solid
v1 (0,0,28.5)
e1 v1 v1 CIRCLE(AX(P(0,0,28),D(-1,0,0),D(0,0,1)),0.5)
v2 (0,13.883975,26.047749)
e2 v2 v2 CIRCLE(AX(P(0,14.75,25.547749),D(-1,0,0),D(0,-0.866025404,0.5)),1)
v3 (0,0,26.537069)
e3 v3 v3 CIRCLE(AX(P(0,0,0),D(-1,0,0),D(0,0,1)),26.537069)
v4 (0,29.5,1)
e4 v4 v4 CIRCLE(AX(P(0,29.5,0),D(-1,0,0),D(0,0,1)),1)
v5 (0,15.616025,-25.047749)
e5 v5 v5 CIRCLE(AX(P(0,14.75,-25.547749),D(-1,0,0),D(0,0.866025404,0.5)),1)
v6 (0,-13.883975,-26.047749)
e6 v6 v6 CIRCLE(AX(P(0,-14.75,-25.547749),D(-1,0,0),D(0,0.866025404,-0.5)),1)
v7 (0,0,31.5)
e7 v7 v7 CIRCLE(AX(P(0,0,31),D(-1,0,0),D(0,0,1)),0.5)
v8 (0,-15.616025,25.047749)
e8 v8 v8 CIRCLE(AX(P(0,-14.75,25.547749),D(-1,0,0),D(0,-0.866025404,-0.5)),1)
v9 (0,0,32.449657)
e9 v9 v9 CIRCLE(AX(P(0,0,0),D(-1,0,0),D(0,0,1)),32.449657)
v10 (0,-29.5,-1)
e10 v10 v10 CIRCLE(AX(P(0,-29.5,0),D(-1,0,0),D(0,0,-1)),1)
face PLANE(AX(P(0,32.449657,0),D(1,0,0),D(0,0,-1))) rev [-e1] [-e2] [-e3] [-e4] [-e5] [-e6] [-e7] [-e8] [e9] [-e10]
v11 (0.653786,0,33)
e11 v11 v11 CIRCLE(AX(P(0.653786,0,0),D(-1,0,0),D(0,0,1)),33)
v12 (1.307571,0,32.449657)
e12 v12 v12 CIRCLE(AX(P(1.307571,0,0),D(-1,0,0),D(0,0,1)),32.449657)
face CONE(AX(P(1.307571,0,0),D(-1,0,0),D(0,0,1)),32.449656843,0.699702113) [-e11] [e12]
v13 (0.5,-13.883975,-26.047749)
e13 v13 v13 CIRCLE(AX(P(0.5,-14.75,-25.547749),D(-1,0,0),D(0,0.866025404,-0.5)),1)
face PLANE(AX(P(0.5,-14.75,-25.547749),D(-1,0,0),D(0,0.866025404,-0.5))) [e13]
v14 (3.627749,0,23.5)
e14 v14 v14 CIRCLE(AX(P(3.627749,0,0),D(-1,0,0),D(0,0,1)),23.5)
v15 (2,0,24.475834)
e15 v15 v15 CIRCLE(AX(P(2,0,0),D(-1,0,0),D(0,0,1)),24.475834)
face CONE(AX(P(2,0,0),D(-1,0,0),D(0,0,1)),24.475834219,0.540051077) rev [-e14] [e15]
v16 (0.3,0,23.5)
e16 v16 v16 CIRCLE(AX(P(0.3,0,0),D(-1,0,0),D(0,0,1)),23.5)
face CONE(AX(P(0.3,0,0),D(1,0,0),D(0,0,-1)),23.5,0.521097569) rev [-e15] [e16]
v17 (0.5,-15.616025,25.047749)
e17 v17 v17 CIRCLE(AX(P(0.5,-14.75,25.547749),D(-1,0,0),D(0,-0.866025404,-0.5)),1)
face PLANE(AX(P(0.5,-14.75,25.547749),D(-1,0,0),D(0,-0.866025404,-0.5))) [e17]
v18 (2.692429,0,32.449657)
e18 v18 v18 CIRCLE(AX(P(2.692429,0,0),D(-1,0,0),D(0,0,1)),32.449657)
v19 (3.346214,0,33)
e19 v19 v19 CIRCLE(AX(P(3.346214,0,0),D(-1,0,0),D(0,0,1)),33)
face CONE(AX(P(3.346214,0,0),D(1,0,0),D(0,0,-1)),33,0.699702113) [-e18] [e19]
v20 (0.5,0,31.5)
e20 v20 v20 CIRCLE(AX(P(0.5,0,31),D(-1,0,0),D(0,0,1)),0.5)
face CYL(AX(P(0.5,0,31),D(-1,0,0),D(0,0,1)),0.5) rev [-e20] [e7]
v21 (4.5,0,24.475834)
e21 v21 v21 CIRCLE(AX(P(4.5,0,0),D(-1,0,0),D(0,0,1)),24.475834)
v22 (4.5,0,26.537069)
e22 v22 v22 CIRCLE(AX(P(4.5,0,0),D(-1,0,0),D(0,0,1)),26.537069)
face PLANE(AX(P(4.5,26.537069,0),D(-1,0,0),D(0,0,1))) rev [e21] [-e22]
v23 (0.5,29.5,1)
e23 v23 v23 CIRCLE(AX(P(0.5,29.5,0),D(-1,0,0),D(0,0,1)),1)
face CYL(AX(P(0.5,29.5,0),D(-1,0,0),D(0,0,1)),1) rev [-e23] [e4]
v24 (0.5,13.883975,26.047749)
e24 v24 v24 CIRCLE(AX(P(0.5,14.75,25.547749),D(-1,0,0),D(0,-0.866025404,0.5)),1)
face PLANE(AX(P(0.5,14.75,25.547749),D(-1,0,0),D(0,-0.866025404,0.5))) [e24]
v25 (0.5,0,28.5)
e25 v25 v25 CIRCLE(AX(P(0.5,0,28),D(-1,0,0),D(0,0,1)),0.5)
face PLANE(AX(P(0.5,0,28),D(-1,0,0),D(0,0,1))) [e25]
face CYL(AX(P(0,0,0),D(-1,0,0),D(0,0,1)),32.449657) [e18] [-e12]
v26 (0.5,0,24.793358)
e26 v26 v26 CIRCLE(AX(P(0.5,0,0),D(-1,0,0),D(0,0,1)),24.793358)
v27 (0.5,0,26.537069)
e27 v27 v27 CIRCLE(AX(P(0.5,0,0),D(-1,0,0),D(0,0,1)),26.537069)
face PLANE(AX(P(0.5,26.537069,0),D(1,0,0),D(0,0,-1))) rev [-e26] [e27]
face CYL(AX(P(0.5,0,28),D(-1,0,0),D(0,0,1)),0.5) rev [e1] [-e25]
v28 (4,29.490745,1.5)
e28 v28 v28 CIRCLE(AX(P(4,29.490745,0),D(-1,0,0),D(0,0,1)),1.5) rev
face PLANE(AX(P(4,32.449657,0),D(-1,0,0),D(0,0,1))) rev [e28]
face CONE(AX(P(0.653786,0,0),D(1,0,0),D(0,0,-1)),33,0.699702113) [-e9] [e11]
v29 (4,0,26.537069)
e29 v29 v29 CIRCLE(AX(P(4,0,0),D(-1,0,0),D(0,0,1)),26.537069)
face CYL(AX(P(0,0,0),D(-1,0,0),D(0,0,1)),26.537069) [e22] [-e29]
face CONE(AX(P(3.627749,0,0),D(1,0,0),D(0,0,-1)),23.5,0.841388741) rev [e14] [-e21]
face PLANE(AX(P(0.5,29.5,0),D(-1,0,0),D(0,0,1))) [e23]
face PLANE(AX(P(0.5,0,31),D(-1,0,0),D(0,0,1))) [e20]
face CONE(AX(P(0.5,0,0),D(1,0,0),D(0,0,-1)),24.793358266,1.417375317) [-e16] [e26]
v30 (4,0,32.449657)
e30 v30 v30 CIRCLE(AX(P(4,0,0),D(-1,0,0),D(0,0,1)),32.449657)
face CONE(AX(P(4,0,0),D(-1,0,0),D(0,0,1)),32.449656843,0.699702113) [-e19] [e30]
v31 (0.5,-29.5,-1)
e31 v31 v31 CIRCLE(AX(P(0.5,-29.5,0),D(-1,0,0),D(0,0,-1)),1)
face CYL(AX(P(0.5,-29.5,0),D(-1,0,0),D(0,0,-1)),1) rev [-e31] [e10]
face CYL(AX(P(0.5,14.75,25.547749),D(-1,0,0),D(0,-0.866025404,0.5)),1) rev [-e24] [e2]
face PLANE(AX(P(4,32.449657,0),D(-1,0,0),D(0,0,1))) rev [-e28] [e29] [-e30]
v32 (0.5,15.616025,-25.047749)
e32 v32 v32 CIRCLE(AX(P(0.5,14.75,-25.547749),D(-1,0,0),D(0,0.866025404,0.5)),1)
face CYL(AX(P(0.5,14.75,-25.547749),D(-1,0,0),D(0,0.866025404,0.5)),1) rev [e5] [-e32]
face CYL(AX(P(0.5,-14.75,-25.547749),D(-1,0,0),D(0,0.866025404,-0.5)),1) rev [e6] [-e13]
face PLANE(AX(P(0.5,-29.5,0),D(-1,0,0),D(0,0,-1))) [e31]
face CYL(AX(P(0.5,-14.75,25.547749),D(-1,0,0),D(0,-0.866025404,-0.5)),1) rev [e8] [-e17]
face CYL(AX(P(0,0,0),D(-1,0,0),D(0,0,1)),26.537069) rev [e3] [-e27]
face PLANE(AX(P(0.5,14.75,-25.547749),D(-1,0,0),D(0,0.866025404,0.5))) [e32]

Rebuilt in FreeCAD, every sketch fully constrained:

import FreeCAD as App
import Part
import Sketcher


def add_polygon(sketch, points):
    """Adds a closed chain of lines whose ends are joined by coincident constraints."""
    first, n = sketch.GeometryCount, len(points)
    for a, b in zip(points, points[1:] + points[:1]):
        sketch.addGeometry(Part.LineSegment(App.Vector(*a, 0), App.Vector(*b, 0)), False)
    for i in range(n):
        sketch.addConstraint(Sketcher.Constraint("Coincident", first + i, 2, first + (i + 1) % n, 1))

doc = App.newDocument("Part")
body = doc.addObject("PartDesign::Body", "Body")

sketch1 = body.newObject("Sketcher::SketchObject", "Sketch")
sketch1.AttachmentSupport = (doc.getObject("XY_Plane"), [""])
sketch1.MapMode = "FlatFace"
add_polygon(sketch1, [(0.653786, 33), (0, 32.449657), (0, 26.537069), (0.5, 26.537069), (0.5, 24.793358), (0.3, 23.5), (2, 24.475834), (3.627749, 23.5), (4.5, 24.475834), (4.5, 26.537069), (4, 26.537069), (4, 32.449657), (3.346214, 33), (2.692429, 32.449657), (1.307571, 32.449657)])
sketch1.addConstraint([
    Sketcher.Constraint("Vertical", 1),
    Sketcher.Constraint("Horizontal", 2),
    Sketcher.Constraint("Vertical", 3),
    Sketcher.Constraint("Vertical", 8),
    Sketcher.Constraint("Horizontal", 9),
    Sketcher.Constraint("Vertical", 10),
    Sketcher.Constraint("Horizontal", 13),
    Sketcher.Constraint("PointOnObject", 0, 2, -2),
    Sketcher.Constraint("Parallel", 0, 12),
    Sketcher.Constraint("Parallel", 11, 14),
    Sketcher.Constraint("Horizontal", 4, 2, 6, 2),
    Sketcher.Constraint("Horizontal", 5, 2, 7, 2),
    Sketcher.Constraint("Horizontal", 2, 2, 8, 2),
    Sketcher.Constraint("Horizontal", 0, 2, 10, 2),
    Sketcher.Constraint("Horizontal", 10, 2, 12, 2),
    Sketcher.Constraint("Horizontal", 11, 2, 14, 2),
    Sketcher.Constraint("Equal", 2, 9),
    Sketcher.Constraint("Equal", 0, 11),
    Sketcher.Constraint("DistanceX", 2, 1, 2, 2, 0.5),
    Sketcher.Constraint("DistanceX", -1, 1, 5, 2, 2.0),
    Sketcher.Constraint("DistanceX", -1, 1, 9, 2, 4.0),
    Sketcher.Constraint("DistanceY", -1, 1, 11, 2, 33.0),
    Sketcher.Constraint("DistanceX", -1, 1, 4, 2, 0.3),
    Sketcher.Constraint("DistanceY", -1, 1, 4, 2, 23.5),
    Sketcher.Constraint("DistanceY", 3, 2, 3, 1, 1.743711),
    Sketcher.Constraint("DistanceY", 3, 2, 0, 2, 7.656299),
    Sketcher.Constraint("Distance", 4, 1.308731),
    Sketcher.Constraint("DistanceX", 13, 2, 13, 1, 1.384858),
    Sketcher.Constraint("DistanceY", 8, 1, 8, 2, 2.061235),
    Sketcher.Constraint("DistanceX", -1, 1, 6, 2, 3.627749),
])
revolution = body.newObject("PartDesign::Revolution", "Revolution")
revolution.Profile = sketch1
revolution.ReferenceAxis = (sketch1, ["H_Axis"])
revolution.Angle = 360

sketch2 = body.newObject("Sketcher::SketchObject", "Sketch001")
sketch2.AttachmentSupport = (doc.getObject("YZ_Plane"), [""])
sketch2.MapMode = "FlatFace"
sketch2.addGeometry(Part.Circle(App.Vector(29.5, 0, 0), App.Vector(0, 0, 1), 1), False)
sketch2.addConstraint([
    Sketcher.Constraint("PointOnObject", 0, 3, -1),
    Sketcher.Constraint("Diameter", 0, 2.0),
    Sketcher.Constraint("DistanceX", -1, 1, 0, 3, 29.5),
])
pocket1 = body.newObject("PartDesign::Pocket", "Pocket")
pocket1.Profile = sketch2
pocket1.Length = 0.5
pocket1.Reversed = True
doc.recompute()

polarpattern = body.newObject("PartDesign::PolarPattern", "PolarPattern")
polarpattern.Originals = [pocket1]
polarpattern.Axis = (doc.getObject("X_Axis"), [""])
polarpattern.Angle = 360
polarpattern.Occurrences = 6
body.Tip = polarpattern

sketch3 = body.newObject("Sketcher::SketchObject", "Sketch002")
sketch3.AttachmentSupport = (doc.getObject("YZ_Plane"), [""])
sketch3.MapMode = "FlatFace"
sketch3.addGeometry([
    Part.Circle(App.Vector(0, 31, 0), App.Vector(0, 0, 1), 0.5),
    Part.Circle(App.Vector(0, 28, 0), App.Vector(0, 0, 1), 0.5),
], False)
sketch3.addConstraint([
    Sketcher.Constraint("Equal", 0, 1),
    Sketcher.Constraint("PointOnObject", 0, 3, -2),
    Sketcher.Constraint("PointOnObject", 1, 3, -2),
    Sketcher.Constraint("Diameter", 0, 1.0),
    Sketcher.Constraint("DistanceY", -1, 1, 0, 3, 31.0),
    Sketcher.Constraint("DistanceY", -1, 1, 1, 3, 28.0),
])
pocket2 = body.newObject("PartDesign::Pocket", "Pocket001")
pocket2.Profile = sketch3
pocket2.Length = 0.5
pocket2.Reversed = True

doc.recompute()
